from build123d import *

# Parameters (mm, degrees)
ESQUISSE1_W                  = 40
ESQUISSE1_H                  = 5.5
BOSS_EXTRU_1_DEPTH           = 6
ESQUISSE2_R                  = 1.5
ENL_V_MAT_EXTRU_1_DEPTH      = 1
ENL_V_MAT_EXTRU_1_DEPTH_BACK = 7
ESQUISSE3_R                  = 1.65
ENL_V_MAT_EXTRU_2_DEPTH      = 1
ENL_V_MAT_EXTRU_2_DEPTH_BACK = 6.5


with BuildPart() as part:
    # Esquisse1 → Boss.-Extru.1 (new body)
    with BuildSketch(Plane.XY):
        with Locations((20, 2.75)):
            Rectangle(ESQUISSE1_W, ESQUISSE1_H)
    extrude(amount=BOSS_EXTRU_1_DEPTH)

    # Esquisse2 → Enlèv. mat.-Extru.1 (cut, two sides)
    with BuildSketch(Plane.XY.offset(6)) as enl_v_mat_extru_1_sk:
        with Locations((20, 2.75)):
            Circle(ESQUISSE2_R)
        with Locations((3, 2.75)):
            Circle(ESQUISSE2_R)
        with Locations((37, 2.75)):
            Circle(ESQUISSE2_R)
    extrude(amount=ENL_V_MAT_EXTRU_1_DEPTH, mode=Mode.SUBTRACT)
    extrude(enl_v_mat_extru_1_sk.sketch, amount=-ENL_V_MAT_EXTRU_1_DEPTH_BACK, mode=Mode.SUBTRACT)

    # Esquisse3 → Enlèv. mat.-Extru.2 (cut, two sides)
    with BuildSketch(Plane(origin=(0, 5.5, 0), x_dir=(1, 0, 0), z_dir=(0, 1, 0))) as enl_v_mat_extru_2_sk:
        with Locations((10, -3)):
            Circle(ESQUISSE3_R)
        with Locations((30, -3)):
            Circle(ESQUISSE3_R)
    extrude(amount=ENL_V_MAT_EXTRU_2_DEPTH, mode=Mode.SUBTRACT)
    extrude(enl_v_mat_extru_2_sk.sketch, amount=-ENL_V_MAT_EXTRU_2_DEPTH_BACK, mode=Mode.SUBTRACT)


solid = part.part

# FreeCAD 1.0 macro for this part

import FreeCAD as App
import Part
import Sketcher

V = App.Vector

doc = App.newDocument("Part")
body = doc.addObject("PartDesign::Body", "Body")

# Sketch on XY plane
sketch1 = doc.addObject("Sketcher::SketchObject", "Sketch")
body.addObject(sketch1)
sketch1.AttachmentSupport = (doc.XY_Plane, [""])
sketch1.MapMode = "FlatFace"
sketch1.addGeometry([
    Part.LineSegment(V(0, 6, 0), V(0, 0, 0)),
    Part.LineSegment(V(0, 0, 0), V(40, 0, 0)),
    Part.LineSegment(V(40, 0, 0), V(40, 6, 0)),
    Part.LineSegment(V(40, 6, 0), V(0, 6, 0)),
], False)
sketch1.addConstraint([
    Sketcher.Constraint("Coincident", 0, 2, 1, 1),
    Sketcher.Constraint("Coincident", 1, 2, 2, 1),
    Sketcher.Constraint("Coincident", 2, 2, 3, 1),
    Sketcher.Constraint("Coincident", 3, 2, 0, 1),
    Sketcher.Constraint("Vertical", 0),
    Sketcher.Constraint("Horizontal", 1),
    Sketcher.Constraint("Vertical", 2),
    Sketcher.Constraint("Horizontal", 3),
    Sketcher.Constraint("Coincident", 0, 2, -1, 1),
    Sketcher.Constraint("DistanceX", 1, 1, 1, 2, 40.0),
    Sketcher.Constraint("DistanceY", 0, 2, 0, 1, 5.5),
])
pad1 = doc.addObject("PartDesign::Pad", "Pad")
body.addObject(pad1)
pad1.Profile = sketch1
pad1.Length = 6

# Sketch on XY plane
sketch2 = doc.addObject("Sketcher::SketchObject", "Sketch001")
body.addObject(sketch2)
sketch2.AttachmentSupport = (doc.XY_Plane, [""])
sketch2.MapMode = "FlatFace"
sketch2.AttachmentOffset = App.Placement(V(0, 0, 6), App.Rotation())
sketch2.addGeometry([
    Part.Circle(V(20, 2.8, 0), V(0, 0, 1), 1.5),
    Part.Circle(V(3, 2.8, 0), V(0, 0, 1), 1.5),
    Part.Circle(V(37, 2.8, 0), V(0, 0, 1), 1.5),
], False)
sketch2.addConstraint([
    Sketcher.Constraint("Equal", 0, 1),
    Sketcher.Constraint("Equal", 1, 2),
    Sketcher.Constraint("Horizontal", 0, 3, 1, 3),
    Sketcher.Constraint("Horizontal", 1, 3, 2, 3),
    Sketcher.Constraint("Diameter", 0, 3.0),
    Sketcher.Constraint("DistanceX", -1, 1, 0, 3, 20.0),
    Sketcher.Constraint("DistanceX", -1, 1, 1, 3, 3.0),
    Sketcher.Constraint("DistanceX", -1, 1, 2, 3, 37.0),
    Sketcher.Constraint("DistanceY", -1, 1, 0, 3, 2.75),
])
pocket1 = doc.addObject("PartDesign::Pocket", "Pocket")
body.addObject(pocket1)
pocket1.Profile = sketch2
pocket1.Type = "ThroughAll"
pocket1.Midplane = True

# Sketch on XZ plane
sketch3 = doc.addObject("Sketcher::SketchObject", "Sketch002")
body.addObject(sketch3)
sketch3.AttachmentSupport = (doc.XZ_Plane, [""])
sketch3.MapMode = "FlatFace"
sketch3.AttachmentOffset = App.Placement(V(0, 0, -5.5), App.Rotation())
sketch3.addGeometry([
    Part.Circle(V(10, 3, 0), V(0, 0, 1), 1.6),
    Part.Circle(V(30, 3, 0), V(0, 0, 1), 1.6),
], False)
sketch3.addConstraint([
    Sketcher.Constraint("Equal", 0, 1),
    Sketcher.Constraint("Horizontal", 0, 3, 1, 3),
    Sketcher.Constraint("Diameter", 0, 3.3),
    Sketcher.Constraint("DistanceX", -1, 1, 0, 3, 10.0),
    Sketcher.Constraint("DistanceY", -1, 1, 0, 3, 3.0),
    Sketcher.Constraint("DistanceX", -1, 1, 1, 3, 30.0),
])
pocket2 = doc.addObject("PartDesign::Pocket", "Pocket001")
body.addObject(pocket2)
pocket2.Profile = sketch3
pocket2.Type = "ThroughAll"
pocket2.Midplane = True

doc.recompute()
